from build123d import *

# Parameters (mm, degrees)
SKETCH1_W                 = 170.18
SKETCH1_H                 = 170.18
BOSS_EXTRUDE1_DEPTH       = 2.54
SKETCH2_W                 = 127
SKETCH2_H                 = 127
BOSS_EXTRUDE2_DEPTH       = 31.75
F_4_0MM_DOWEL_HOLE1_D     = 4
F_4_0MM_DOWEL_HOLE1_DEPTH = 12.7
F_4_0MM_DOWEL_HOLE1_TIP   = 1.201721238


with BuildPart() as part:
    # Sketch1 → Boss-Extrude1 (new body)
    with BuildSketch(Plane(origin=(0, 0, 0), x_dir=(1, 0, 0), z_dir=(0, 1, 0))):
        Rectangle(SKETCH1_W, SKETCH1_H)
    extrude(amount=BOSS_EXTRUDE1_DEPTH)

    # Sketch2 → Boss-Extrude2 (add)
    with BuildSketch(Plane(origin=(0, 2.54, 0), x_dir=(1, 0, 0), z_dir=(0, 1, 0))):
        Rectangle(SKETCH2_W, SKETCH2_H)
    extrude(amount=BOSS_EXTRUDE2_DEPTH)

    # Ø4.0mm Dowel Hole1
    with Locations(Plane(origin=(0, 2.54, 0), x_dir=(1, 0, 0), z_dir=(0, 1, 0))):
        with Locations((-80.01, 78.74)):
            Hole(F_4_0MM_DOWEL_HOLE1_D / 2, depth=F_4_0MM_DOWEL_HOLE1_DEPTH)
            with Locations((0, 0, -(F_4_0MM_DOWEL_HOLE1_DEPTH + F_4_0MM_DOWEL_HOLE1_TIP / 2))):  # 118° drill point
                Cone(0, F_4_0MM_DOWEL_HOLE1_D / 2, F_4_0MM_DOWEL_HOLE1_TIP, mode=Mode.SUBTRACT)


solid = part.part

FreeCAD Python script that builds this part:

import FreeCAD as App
import Part
import Sketcher
Q = App.Units.Quantity


def add_polygon(sketch, points):
    """Adds a closed chain of lines whose ends are joined by coincident constraints."""
    first, n = sketch.GeometryCount, len(points)
    for a, b in zip(points, points[1:] + points[:1]):
        sketch.addGeometry(Part.LineSegment(App.Vector(*a, 0), App.Vector(*b, 0)), False)
    for i in range(n):
        sketch.addConstraint(Sketcher.Constraint("Coincident", first + i, 2, first + (i + 1) % n, 1))

doc = App.newDocument("Part")
body = doc.addObject("PartDesign::Body", "Body")

# Sketch on XZ plane
sketch1 = body.newObject("Sketcher::SketchObject", "Sketch")
sketch1.AttachmentSupport = (doc.getObject("XZ_Plane"), [""])
sketch1.MapMode = "FlatFace"
add_polygon(sketch1, [(-85, -85), (-85, 85), (85, 85), (85, -85)])  # lines 0-3
sketch1.addConstraint([
    Sketcher.Constraint("Vertical", 0),
    Sketcher.Constraint("Horizontal", 1),
    Sketcher.Constraint("Vertical", 2),
    Sketcher.Constraint("Horizontal", 3),
    Sketcher.Constraint("Symmetric", 0, 2, 2, 2, -1, 1),
    Sketcher.Constraint("Equal", 3, 0),
    Sketcher.Constraint("DistanceX", 1, 1, 1, 2, Q("6.7 in")),
])
pad1 = body.newObject("PartDesign::Pad", "Pad")
pad1.Profile = sketch1
pad1.Length = Q("0.1 in")
pad1.Reversed = True

# Sketch on XZ plane
sketch2 = body.newObject("Sketcher::SketchObject", "Sketch001")
sketch2.AttachmentSupport = (doc.getObject("XZ_Plane"), [""])
sketch2.MapMode = "FlatFace"
sketch2.AttachmentOffset = App.Placement(App.Vector(0, 0, -0.1 * 25.4), App.Rotation())
add_polygon(sketch2, [(-64, -64), (-64, 64), (64, 64), (64, -64)])  # lines 0-3
sketch2.addConstraint([
    Sketcher.Constraint("Vertical", 0),
    Sketcher.Constraint("Horizontal", 1),
    Sketcher.Constraint("Vertical", 2),
    Sketcher.Constraint("Horizontal", 3),
    Sketcher.Constraint("Symmetric", 0, 2, 2, 2, -1, 1),
    Sketcher.Constraint("Equal", 3, 0),
    Sketcher.Constraint("DistanceX", 1, 1, 1, 2, Q("5 in")),
])
pad2 = body.newObject("PartDesign::Pad", "Pad001")
pad2.Profile = sketch2
pad2.Length = Q("1.25 in")
pad2.Reversed = True

# Sketch on XZ plane
sketch3 = body.newObject("Sketcher::SketchObject", "Sketch002")
sketch3.AttachmentSupport = (doc.getObject("XZ_Plane"), [""])
sketch3.MapMode = "FlatFace"
sketch3.AttachmentOffset = App.Placement(App.Vector(0, 0, -0.1 * 25.4), App.Rotation())
sketch3.addGeometry(Part.Circle(App.Vector(-80, -78.7, 0), App.Vector(0, 0, 1), 2), False)
sketch3.addConstraint([
    Sketcher.Constraint("DistanceY", 0, 3, -1, 1, Q("3.1 in")),
    Sketcher.Constraint("Diameter", 0, 4.0),
    Sketcher.Constraint("DistanceX", 0, 3, -1, 1, Q("3.15 in")),
])
doc.recompute()
hole = body.newObject("PartDesign::Hole", "Hole")
hole.Profile = sketch3
hole.ThreadType = "None"
hole.Diameter = 4
hole.DepthType = "Dimension"
hole.Depth = Q("0.5 in")
hole.DrillPoint = "Angled"
hole.DrillPointAngle = 118
hole.Reversed = True

doc.recompute()
